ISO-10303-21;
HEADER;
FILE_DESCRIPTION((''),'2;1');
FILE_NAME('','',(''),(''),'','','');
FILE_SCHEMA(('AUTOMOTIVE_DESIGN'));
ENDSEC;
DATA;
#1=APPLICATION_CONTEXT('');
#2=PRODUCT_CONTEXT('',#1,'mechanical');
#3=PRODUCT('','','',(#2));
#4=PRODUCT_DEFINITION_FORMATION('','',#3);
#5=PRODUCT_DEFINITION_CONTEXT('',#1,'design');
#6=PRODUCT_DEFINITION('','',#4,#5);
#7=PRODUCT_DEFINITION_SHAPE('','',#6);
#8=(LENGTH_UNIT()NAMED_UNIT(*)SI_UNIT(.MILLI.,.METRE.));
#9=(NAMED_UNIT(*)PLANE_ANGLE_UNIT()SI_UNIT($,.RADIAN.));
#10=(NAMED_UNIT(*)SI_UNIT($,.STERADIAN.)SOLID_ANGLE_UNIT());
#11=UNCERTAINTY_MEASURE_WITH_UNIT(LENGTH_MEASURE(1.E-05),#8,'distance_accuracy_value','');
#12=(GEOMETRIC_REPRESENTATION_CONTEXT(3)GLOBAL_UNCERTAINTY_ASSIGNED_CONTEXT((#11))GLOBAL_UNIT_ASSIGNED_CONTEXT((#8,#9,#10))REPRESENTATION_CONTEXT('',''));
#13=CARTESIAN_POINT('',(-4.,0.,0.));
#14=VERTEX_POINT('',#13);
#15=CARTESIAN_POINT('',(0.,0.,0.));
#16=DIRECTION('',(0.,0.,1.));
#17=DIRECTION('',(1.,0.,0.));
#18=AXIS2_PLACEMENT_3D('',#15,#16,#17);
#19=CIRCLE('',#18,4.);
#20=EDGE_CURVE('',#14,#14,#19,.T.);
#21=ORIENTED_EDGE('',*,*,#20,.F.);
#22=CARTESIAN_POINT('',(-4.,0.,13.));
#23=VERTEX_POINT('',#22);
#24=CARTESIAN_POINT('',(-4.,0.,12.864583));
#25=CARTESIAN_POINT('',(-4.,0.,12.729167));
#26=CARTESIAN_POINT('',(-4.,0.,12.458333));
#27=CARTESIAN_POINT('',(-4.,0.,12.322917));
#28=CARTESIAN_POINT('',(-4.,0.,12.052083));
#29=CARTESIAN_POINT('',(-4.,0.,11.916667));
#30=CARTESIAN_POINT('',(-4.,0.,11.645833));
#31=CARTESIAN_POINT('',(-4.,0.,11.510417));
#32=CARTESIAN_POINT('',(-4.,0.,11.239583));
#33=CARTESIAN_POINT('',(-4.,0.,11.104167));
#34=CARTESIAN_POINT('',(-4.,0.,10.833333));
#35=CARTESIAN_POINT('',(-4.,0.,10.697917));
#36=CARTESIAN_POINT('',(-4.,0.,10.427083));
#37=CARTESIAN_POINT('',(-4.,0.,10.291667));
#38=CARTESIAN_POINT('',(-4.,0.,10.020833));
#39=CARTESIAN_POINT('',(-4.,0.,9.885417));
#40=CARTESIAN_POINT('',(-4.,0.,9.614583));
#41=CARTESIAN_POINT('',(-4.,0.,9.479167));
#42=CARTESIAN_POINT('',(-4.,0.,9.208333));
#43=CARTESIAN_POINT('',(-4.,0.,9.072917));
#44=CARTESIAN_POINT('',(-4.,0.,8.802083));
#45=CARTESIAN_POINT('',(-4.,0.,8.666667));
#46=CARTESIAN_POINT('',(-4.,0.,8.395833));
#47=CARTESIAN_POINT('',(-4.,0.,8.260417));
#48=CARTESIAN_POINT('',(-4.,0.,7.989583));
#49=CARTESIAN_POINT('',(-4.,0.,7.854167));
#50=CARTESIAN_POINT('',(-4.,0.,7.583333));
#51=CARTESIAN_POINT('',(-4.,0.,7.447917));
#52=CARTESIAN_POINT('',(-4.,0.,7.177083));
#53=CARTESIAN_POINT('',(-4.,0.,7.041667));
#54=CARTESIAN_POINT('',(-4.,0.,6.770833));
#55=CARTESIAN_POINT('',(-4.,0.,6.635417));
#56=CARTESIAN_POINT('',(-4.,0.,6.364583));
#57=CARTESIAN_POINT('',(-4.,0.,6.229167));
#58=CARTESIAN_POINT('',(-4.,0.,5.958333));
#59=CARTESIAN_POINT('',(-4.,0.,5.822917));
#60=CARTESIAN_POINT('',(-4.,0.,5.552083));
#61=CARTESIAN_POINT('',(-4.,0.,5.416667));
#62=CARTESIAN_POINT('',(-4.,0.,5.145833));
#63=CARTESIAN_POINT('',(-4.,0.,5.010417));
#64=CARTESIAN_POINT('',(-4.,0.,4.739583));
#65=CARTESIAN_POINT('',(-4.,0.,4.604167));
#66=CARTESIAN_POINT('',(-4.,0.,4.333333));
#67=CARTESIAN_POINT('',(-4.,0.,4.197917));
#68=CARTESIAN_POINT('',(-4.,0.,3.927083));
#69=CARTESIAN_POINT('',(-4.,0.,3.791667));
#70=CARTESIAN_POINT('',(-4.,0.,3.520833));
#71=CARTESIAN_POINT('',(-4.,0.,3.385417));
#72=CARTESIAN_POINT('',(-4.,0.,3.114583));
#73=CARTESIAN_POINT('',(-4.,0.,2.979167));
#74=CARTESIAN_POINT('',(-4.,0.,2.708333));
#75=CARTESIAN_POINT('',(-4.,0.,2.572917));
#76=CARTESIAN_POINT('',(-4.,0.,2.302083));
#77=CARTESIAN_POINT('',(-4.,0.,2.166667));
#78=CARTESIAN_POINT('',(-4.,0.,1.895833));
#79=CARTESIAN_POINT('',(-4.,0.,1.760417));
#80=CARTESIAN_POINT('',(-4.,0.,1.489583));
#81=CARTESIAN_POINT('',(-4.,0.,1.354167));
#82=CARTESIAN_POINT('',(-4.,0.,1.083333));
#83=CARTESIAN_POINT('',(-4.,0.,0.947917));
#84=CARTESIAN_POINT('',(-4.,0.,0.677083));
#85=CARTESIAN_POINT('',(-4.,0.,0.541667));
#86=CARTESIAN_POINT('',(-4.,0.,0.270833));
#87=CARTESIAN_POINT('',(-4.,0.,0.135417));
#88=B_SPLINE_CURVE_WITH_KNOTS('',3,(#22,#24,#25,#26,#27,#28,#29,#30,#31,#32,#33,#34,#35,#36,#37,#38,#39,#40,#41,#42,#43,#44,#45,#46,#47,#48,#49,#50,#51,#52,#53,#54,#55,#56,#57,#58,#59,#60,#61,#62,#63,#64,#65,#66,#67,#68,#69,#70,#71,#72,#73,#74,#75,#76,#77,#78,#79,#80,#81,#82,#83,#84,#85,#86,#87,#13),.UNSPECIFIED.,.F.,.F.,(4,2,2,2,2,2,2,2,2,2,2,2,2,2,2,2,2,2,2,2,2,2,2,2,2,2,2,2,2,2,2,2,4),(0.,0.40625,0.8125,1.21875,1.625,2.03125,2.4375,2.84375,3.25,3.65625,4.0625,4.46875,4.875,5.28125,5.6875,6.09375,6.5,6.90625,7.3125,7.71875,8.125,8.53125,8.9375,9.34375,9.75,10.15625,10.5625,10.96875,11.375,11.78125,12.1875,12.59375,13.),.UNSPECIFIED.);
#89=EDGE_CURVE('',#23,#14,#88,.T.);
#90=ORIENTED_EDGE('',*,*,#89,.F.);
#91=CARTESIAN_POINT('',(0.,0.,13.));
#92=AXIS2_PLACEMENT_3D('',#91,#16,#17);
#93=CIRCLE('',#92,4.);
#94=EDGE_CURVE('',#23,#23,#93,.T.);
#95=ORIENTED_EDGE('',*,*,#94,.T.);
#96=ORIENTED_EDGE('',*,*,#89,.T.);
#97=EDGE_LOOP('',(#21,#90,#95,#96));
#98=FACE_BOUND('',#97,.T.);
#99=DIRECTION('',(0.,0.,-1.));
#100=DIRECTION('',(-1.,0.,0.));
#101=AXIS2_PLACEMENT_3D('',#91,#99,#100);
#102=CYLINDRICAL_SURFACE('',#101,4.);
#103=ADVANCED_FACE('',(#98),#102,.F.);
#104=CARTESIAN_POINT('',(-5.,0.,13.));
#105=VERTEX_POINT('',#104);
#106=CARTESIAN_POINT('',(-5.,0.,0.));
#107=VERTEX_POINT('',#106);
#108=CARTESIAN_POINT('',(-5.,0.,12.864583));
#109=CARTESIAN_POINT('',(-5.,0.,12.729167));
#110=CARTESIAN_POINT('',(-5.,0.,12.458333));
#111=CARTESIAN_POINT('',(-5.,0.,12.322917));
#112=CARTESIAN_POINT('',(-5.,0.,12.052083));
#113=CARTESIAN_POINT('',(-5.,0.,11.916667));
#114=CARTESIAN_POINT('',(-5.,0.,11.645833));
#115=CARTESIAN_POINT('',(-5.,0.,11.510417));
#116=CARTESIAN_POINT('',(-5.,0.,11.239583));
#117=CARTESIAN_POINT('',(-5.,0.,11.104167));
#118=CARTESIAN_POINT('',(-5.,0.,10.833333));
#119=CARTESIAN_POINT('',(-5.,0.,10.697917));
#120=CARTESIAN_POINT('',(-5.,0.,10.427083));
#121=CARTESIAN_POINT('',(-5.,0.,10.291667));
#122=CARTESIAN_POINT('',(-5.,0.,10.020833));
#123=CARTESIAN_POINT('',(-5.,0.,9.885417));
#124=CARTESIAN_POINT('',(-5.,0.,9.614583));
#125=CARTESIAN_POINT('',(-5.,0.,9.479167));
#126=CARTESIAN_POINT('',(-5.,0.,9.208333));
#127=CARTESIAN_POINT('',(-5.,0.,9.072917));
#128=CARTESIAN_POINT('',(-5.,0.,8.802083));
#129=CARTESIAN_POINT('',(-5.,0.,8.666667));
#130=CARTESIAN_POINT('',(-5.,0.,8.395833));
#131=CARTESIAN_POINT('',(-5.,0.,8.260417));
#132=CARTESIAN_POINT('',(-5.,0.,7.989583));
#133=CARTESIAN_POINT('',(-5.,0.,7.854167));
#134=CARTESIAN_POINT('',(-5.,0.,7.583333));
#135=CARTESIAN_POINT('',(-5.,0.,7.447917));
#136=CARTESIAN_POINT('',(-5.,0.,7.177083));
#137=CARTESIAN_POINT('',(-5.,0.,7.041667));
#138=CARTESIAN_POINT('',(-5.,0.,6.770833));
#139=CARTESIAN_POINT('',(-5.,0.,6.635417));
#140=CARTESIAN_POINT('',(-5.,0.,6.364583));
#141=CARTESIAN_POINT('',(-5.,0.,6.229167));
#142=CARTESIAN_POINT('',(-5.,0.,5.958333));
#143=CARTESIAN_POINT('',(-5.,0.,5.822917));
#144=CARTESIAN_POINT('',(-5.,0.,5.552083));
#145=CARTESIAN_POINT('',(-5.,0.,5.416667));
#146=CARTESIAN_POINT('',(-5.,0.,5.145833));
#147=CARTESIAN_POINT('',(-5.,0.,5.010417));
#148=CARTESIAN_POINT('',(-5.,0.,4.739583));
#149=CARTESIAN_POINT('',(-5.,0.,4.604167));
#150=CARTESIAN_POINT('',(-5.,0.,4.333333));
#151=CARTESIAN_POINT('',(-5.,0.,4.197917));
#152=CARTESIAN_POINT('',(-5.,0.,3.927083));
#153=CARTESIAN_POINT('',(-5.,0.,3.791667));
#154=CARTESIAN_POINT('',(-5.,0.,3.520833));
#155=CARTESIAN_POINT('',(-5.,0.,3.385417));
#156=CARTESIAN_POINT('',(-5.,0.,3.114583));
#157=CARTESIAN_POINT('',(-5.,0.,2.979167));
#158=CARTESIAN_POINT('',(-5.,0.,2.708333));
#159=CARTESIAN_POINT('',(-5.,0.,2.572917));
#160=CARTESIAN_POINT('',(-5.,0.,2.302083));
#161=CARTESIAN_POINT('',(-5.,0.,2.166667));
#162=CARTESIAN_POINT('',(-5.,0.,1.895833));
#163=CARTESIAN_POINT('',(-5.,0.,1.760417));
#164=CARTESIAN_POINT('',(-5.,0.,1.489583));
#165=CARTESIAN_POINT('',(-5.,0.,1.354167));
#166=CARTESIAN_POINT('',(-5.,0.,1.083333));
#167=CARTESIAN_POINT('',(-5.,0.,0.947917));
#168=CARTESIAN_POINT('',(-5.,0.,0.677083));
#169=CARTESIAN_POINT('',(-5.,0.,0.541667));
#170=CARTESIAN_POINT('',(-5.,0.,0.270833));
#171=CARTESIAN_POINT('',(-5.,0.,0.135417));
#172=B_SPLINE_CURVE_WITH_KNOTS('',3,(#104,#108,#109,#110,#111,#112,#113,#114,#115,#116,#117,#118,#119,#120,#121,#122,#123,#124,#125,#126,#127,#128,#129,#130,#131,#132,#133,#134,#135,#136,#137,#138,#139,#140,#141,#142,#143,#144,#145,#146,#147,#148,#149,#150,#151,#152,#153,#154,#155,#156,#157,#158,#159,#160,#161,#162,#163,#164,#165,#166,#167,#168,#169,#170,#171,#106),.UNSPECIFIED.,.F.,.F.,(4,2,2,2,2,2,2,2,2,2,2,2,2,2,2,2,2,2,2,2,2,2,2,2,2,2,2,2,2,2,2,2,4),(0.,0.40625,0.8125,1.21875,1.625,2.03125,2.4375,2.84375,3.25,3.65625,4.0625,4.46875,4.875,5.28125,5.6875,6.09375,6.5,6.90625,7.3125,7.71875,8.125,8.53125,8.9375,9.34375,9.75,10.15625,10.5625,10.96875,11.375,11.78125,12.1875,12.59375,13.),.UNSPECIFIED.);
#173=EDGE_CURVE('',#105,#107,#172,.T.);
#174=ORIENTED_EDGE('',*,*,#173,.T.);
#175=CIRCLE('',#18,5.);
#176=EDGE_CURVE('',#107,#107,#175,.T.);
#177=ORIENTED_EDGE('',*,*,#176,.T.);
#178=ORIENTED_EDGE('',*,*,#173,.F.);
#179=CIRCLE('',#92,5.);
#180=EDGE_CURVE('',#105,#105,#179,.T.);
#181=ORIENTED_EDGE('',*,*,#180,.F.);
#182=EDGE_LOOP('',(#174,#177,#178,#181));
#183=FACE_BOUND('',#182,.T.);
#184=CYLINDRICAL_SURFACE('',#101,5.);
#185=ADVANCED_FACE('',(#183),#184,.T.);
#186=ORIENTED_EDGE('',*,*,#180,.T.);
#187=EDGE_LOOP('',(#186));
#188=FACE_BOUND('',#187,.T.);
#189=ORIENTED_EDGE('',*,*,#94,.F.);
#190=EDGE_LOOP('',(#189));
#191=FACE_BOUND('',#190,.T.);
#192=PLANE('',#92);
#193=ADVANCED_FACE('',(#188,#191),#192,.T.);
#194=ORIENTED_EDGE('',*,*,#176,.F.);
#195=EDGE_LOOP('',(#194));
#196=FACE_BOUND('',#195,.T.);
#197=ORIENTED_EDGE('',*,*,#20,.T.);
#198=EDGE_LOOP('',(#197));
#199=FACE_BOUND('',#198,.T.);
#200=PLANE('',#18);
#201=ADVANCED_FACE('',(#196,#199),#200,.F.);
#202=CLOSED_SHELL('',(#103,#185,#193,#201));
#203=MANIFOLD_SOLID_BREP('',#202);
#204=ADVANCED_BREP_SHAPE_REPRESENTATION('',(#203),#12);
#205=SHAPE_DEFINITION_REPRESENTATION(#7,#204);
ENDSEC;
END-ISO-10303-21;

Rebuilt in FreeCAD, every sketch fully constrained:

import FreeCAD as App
import Part
import Sketcher
Q = App.Units.Quantity


def faces_at(feature, points):
    """Names of the faces that lie closest to the given points."""
    faces = feature.Shape.Faces
    near = lambda p: min(range(len(faces)), key=lambda i: faces[i].distToShape(Part.Vertex(*p))[0])
    return sorted({f"Face{near(p) + 1}" for p in points})

doc = App.newDocument("Part")
body = doc.addObject("PartDesign::Body", "Body")

sketch1 = body.newObject("Sketcher::SketchObject", "Sketch")
sketch1.AttachmentSupport = (doc.getObject("XY_Plane"), [""])
sketch1.MapMode = "FlatFace"
sketch1.addGeometry(Part.Circle(App.Vector(0, 0, 0), App.Vector(0, 0, 1), 4), False)
sketch1.addConstraint(Sketcher.Constraint("Coincident", 0, 3, -1, 1))
sketch1.addConstraint(Sketcher.Constraint("Diameter", 0, Q("8 mm")))
pad1 = body.newObject("PartDesign::Pad", "Pad")
pad1.Profile = sketch1
pad1.Length = 13
doc.recompute()

thickness = body.newObject("PartDesign::Thickness", "Thickness")
thickness.Base = (pad1, faces_at(pad1, [(0, 0, 0), (0, 0, 13)]))
thickness.Value = 1
thickness.Reversed = False
thickness.Join = "Intersection"

doc.recompute()
